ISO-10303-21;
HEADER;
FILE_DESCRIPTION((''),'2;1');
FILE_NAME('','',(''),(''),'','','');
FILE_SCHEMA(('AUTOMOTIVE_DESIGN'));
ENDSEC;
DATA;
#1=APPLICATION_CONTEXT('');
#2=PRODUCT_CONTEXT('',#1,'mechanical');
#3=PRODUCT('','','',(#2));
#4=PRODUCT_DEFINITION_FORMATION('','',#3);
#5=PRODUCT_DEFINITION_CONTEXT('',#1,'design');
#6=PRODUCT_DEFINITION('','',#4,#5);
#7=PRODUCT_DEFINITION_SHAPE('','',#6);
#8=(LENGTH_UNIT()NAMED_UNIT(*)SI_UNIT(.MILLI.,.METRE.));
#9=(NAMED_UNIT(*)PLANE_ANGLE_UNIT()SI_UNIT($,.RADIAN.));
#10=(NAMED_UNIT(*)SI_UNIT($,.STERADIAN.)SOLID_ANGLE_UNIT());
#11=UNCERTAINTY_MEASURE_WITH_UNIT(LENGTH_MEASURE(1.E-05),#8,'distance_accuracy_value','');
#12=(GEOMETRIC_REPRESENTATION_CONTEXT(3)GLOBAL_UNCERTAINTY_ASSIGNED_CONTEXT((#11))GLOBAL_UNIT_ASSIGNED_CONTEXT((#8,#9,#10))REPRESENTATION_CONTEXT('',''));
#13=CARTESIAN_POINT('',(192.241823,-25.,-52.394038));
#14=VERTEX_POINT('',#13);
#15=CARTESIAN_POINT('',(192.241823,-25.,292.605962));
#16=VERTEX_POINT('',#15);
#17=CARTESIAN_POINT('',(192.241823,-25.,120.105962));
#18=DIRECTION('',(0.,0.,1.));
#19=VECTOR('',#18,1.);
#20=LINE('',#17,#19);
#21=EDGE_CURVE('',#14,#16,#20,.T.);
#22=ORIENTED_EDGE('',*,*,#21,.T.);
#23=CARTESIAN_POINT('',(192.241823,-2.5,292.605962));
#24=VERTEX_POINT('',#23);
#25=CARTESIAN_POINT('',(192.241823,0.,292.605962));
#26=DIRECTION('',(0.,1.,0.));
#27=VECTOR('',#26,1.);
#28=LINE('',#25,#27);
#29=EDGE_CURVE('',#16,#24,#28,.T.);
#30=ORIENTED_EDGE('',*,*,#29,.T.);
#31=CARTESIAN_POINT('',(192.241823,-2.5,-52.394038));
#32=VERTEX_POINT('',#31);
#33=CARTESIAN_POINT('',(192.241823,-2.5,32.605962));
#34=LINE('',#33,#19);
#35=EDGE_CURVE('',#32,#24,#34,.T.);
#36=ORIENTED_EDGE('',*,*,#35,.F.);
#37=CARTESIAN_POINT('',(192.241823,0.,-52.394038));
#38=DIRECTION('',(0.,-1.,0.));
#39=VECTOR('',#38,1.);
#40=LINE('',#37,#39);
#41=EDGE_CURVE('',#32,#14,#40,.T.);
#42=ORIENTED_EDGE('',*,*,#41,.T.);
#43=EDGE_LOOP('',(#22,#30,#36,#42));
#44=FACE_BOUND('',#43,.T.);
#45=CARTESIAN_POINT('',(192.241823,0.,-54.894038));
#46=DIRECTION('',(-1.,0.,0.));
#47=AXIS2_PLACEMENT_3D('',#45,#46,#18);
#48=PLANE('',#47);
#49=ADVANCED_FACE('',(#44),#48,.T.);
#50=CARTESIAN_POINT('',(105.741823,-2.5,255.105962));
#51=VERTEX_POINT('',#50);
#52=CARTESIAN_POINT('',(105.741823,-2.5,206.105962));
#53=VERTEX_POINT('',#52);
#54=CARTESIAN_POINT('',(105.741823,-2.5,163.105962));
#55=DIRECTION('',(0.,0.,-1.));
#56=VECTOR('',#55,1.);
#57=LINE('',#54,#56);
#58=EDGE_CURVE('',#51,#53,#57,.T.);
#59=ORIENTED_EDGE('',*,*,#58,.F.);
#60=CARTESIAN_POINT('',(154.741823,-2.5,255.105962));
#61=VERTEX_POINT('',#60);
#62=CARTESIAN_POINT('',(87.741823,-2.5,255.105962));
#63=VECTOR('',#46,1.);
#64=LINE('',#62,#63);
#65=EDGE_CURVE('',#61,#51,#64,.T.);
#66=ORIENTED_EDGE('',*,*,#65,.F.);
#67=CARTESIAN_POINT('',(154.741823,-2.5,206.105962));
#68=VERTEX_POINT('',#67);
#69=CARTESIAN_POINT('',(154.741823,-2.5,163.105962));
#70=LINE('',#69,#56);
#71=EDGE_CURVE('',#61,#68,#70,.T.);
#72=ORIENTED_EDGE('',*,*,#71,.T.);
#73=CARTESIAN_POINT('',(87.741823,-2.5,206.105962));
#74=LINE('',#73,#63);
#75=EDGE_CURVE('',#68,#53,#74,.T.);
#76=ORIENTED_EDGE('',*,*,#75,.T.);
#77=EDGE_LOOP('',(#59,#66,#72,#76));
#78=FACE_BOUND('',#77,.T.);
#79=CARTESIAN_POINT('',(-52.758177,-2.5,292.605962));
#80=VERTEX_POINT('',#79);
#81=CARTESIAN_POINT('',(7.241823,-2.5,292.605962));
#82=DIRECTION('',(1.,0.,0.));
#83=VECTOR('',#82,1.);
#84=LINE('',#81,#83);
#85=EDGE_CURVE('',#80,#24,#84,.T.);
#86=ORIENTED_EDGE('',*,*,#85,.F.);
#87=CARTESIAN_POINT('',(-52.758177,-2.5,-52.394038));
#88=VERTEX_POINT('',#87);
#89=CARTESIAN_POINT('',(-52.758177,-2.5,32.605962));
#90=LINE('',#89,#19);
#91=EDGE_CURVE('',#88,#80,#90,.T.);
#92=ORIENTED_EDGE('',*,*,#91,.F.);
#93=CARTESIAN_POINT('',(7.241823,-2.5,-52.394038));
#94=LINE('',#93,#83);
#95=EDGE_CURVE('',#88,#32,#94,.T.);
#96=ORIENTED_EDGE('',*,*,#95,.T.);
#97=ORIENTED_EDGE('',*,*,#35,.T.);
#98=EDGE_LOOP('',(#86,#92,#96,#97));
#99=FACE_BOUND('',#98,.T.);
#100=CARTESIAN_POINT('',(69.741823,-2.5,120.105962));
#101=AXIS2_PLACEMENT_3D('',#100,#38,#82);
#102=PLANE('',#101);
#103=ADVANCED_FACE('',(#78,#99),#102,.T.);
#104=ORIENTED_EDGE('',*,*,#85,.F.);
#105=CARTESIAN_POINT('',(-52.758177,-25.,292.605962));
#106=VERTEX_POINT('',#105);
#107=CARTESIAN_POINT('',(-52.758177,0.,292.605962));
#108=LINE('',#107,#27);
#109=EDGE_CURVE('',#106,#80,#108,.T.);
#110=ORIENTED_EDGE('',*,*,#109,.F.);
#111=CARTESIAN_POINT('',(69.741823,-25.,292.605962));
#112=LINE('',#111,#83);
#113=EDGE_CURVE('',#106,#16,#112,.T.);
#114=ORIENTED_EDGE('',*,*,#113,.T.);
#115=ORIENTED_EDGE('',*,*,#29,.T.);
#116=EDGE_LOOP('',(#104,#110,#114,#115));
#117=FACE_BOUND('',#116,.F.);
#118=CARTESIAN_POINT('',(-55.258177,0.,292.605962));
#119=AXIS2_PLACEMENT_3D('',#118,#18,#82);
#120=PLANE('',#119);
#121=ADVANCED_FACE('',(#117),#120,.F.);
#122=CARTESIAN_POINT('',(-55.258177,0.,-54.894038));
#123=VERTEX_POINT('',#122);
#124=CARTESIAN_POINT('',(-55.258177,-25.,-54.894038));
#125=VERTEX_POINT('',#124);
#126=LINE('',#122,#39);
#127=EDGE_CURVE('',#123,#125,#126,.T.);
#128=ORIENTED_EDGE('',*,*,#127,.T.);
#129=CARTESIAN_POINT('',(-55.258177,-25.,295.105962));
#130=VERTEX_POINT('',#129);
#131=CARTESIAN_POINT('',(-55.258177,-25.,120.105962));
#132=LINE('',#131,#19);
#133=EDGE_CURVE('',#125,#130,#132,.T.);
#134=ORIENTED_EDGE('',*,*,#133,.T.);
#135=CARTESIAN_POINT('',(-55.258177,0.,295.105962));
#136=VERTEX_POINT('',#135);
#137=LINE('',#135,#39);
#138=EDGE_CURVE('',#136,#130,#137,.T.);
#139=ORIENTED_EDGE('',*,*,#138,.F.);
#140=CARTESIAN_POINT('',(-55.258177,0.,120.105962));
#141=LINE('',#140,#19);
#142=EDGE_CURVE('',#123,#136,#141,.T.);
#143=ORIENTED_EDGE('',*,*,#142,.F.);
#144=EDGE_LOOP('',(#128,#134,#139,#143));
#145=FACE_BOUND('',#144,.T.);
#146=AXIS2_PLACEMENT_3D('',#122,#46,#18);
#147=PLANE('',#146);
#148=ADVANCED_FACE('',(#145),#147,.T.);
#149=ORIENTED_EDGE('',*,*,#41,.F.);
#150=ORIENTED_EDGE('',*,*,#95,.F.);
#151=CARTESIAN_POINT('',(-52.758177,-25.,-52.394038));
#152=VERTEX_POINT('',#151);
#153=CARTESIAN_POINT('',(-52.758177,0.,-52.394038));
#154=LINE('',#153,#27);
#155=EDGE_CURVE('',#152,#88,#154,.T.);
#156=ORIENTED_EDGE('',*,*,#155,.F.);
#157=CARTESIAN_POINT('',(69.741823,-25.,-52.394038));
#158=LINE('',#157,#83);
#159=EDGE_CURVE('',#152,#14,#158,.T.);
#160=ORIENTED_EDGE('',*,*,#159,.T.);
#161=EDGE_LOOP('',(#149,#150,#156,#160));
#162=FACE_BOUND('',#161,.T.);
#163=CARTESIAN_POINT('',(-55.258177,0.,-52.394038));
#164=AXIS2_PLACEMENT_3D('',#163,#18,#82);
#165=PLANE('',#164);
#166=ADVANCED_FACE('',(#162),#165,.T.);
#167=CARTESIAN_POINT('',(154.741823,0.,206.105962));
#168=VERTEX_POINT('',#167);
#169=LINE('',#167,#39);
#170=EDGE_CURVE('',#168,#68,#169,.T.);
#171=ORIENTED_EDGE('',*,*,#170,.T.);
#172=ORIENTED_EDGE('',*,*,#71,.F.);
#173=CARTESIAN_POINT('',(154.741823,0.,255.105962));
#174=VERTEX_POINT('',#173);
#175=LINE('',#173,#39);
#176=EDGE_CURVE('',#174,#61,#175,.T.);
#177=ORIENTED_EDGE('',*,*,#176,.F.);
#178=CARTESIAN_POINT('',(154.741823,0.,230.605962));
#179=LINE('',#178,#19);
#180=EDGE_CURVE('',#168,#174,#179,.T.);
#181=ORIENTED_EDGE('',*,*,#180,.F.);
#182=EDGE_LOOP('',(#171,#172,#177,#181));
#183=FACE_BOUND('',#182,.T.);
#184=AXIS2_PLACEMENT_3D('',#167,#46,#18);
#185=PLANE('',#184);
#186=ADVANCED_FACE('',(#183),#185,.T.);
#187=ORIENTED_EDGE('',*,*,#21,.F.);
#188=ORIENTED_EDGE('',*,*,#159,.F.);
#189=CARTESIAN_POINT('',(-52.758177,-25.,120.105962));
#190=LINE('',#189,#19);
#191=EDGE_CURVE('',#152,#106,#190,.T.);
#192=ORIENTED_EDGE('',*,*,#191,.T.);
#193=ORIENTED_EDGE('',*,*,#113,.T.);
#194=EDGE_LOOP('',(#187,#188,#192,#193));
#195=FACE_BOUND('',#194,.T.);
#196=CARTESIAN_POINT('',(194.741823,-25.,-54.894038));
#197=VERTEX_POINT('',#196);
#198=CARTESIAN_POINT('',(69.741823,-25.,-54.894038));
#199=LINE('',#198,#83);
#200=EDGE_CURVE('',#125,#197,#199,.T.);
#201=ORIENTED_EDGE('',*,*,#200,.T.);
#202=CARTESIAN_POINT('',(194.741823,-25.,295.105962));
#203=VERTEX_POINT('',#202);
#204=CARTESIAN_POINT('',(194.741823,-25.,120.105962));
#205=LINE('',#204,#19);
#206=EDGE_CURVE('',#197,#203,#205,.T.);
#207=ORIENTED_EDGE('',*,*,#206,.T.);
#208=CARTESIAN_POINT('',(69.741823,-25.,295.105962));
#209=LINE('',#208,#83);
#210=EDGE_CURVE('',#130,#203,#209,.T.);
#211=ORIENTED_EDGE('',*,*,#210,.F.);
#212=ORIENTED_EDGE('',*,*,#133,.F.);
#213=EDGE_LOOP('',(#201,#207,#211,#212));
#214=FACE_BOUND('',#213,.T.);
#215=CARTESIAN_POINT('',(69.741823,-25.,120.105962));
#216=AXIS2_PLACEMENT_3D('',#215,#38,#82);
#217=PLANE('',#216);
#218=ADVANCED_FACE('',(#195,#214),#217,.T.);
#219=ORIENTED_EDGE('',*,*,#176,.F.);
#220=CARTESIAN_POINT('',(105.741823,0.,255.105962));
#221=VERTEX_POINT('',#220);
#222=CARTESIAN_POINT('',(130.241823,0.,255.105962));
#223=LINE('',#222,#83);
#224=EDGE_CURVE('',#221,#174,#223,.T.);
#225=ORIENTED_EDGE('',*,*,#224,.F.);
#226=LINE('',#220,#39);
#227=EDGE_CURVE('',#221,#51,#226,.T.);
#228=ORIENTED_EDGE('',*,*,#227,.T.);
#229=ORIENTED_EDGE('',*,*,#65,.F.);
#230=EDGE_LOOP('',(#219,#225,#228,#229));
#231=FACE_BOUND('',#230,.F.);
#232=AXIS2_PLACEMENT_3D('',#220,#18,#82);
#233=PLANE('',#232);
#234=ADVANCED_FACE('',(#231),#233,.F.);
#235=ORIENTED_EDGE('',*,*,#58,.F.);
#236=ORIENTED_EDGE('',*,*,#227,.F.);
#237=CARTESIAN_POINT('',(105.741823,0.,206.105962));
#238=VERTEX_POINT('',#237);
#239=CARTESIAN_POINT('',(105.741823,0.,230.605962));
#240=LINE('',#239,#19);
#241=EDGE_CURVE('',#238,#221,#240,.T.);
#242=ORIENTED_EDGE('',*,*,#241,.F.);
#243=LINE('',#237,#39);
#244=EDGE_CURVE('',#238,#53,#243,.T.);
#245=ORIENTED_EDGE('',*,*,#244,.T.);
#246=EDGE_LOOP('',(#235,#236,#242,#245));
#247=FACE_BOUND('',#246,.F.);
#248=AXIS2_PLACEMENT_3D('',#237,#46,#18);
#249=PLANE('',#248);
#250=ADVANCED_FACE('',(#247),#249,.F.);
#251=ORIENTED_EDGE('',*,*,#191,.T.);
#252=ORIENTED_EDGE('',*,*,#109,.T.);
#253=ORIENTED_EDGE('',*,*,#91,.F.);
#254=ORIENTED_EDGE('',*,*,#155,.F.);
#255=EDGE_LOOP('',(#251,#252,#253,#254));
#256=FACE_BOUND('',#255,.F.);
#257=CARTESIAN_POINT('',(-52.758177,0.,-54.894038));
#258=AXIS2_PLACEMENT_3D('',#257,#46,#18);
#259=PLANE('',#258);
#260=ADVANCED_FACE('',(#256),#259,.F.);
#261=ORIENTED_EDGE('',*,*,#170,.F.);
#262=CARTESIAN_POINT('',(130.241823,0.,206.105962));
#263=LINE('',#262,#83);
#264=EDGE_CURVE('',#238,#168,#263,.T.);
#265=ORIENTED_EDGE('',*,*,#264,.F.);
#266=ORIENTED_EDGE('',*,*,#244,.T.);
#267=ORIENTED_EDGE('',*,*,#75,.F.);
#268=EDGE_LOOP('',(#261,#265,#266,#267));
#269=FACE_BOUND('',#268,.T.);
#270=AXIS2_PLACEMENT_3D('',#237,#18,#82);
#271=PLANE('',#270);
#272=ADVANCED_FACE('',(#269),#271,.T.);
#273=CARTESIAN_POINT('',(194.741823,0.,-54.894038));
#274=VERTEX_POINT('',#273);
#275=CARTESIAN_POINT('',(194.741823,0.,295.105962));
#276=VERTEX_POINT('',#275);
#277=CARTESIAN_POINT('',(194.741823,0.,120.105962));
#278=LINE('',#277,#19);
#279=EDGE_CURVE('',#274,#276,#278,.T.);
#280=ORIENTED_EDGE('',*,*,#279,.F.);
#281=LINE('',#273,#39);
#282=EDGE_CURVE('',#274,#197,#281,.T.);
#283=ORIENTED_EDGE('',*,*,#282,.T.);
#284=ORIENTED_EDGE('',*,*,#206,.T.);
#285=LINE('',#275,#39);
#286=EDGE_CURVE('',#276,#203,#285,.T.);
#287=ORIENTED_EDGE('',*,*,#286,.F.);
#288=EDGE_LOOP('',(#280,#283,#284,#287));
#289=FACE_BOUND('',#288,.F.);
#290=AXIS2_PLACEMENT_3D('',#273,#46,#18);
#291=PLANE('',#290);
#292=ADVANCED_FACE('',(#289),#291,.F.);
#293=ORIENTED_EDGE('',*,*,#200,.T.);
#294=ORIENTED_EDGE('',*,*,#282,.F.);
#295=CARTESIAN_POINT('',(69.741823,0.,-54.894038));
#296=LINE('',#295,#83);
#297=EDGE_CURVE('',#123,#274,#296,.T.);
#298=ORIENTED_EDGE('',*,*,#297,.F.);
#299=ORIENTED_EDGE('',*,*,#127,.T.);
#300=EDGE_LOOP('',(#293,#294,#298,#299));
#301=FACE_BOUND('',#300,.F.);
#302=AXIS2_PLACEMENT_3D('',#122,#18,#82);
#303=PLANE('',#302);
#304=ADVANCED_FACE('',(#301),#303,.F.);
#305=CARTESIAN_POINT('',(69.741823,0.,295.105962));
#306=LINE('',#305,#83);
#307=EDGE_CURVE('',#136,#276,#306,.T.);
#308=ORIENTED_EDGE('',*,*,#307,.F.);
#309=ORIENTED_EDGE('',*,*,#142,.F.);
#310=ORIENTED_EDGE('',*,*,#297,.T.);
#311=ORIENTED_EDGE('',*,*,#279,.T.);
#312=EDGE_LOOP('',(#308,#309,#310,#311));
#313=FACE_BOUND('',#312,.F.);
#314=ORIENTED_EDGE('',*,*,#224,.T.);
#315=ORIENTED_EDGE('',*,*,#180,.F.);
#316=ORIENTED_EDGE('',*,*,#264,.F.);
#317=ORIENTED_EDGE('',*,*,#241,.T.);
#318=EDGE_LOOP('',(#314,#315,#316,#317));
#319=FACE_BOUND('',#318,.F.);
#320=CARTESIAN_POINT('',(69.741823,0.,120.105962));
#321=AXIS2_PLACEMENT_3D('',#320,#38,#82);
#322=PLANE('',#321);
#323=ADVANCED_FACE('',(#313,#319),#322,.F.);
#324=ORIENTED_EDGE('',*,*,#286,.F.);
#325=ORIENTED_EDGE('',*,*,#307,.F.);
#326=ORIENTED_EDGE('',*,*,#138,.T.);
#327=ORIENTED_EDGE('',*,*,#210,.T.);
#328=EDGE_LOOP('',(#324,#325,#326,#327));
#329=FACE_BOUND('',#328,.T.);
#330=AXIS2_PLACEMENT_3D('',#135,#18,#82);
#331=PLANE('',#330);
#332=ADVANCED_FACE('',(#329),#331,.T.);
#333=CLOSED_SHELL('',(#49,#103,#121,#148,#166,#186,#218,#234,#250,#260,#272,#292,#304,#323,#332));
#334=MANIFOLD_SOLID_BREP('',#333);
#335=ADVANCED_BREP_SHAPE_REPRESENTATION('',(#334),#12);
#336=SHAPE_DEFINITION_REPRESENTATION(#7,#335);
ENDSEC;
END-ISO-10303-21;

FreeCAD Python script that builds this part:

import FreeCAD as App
import Part
import Sketcher

V = App.Vector


def faces_at(feature, points):
    """Names of the faces that lie closest to the given points."""
    faces = feature.Shape.Faces
    near = lambda p: min(range(len(faces)), key=lambda i: faces[i].distToShape(Part.Vertex(*p))[0])
    return sorted({f"Face{near(p) + 1}" for p in points})

doc = App.newDocument("Part")
body = doc.addObject("PartDesign::Body", "Body")

# Sketch on XZ plane
sketch1 = body.newObject("Sketcher::SketchObject", "Sketch")
sketch1.AttachmentSupport = (doc.getObject("XZ_Plane"), [""])
sketch1.MapMode = "FlatFace"
sketch1.addGeometry([
    Part.LineSegment(V(-55, 295, 0), V(-55, -55, 0)),
    Part.LineSegment(V(-55, -55, 0), V(195, -55, 0)),
    Part.LineSegment(V(195, -55, 0), V(195, 295, 0)),
    Part.LineSegment(V(195, 295, 0), V(-55, 295, 0)),
], False)
sketch1.addConstraint([
    Sketcher.Constraint("Coincident", 0, 2, 1, 1),
    Sketcher.Constraint("Coincident", 1, 2, 2, 1),
    Sketcher.Constraint("Coincident", 2, 2, 3, 1),
    Sketcher.Constraint("Coincident", 3, 2, 0, 1),
    Sketcher.Constraint("Vertical", 0),
    Sketcher.Constraint("Horizontal", 1),
    Sketcher.Constraint("Vertical", 2),
    Sketcher.Constraint("Horizontal", 3),
    Sketcher.Constraint("DistanceX", 1, 1, 1, 2, 250.0),
    Sketcher.Constraint("DistanceY", 0, 2, 0, 1, 350.0),
    Sketcher.Constraint("DistanceY", 0, 2, -1, 1, 54.894038),
    Sketcher.Constraint("DistanceX", 0, 2, -1, 1, 55.258177),
])
pad1 = body.newObject("PartDesign::Pad", "Pad")
pad1.Profile = sketch1
pad1.Length = 25
doc.recompute()

thickness = body.newObject("PartDesign::Thickness", "Thickness")
thickness.Base = (pad1, faces_at(pad1, [(69.742, -25, 120.106)]))
thickness.Value = 2.5
thickness.Reversed = True
thickness.Join = "Arc"

# Sketch on XZ plane
sketch2 = body.newObject("Sketcher::SketchObject", "Sketch001")
sketch2.AttachmentSupport = (doc.getObject("XZ_Plane"), [""])
sketch2.MapMode = "FlatFace"
sketch2.addGeometry([
    Part.LineSegment(V(106, 255, 0), V(106, 206, 0)),
    Part.LineSegment(V(106, 206, 0), V(155, 206, 0)),
    Part.LineSegment(V(155, 206, 0), V(155, 255, 0)),
    Part.LineSegment(V(155, 255, 0), V(106, 255, 0)),
], False)
sketch2.addConstraint([
    Sketcher.Constraint("Coincident", 0, 2, 1, 1),
    Sketcher.Constraint("Coincident", 1, 2, 2, 1),
    Sketcher.Constraint("Coincident", 2, 2, 3, 1),
    Sketcher.Constraint("Coincident", 3, 2, 0, 1),
    Sketcher.Constraint("Vertical", 0),
    Sketcher.Constraint("Horizontal", 1),
    Sketcher.Constraint("Vertical", 2),
    Sketcher.Constraint("Horizontal", 3),
    Sketcher.Constraint("Equal", 3, 0),
    Sketcher.Constraint("DistanceX", 1, 1, 1, 2, 49.0),
    Sketcher.Constraint("DistanceY", -1, 1, 0, 2, 206.105962),
    Sketcher.Constraint("DistanceX", -1, 1, 0, 2, 105.741823),
])
pocket1 = body.newObject("PartDesign::Pocket", "Pocket")
pocket1.Profile = sketch2
pocket1.Length = 25
pocket1.Reversed = True

doc.recompute()
